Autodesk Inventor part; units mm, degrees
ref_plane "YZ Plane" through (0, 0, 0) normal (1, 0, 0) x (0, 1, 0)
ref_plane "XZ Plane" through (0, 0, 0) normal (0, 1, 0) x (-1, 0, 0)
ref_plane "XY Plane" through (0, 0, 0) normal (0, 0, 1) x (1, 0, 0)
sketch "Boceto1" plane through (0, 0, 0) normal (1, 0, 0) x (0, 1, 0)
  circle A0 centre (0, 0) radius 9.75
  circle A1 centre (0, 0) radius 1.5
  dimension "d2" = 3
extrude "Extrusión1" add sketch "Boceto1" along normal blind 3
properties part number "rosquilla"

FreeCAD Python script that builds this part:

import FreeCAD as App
import Part
import Sketcher

V = App.Vector
Q = App.Units.Quantity

doc = App.newDocument("Part")
body = doc.addObject("PartDesign::Body", "Body")

# Sketch on YZ plane
sketch1 = body.newObject("Sketcher::SketchObject", "Sketch")
sketch1.AttachmentSupport = (doc.getObject("YZ_Plane"), [""])
sketch1.MapMode = "FlatFace"
sketch1.addGeometry(Part.Circle(V(0, 0, 0), V(0, 0, 1), 9.8), False)
sketch1.addGeometry(Part.Circle(V(0, 0, 0), V(0, 0, 1), 1.5), False)
sketch1.addConstraint(Sketcher.Constraint("Coincident", 0, 3, -1, 1))
sketch1.addConstraint(Sketcher.Constraint("Coincident", 1, 3, -1, 1))
sketch1.addConstraint(Sketcher.Constraint("Diameter", 1, Q("3 mm")))
sketch1.addConstraint(Sketcher.Constraint("Diameter", 0, Q("19.5 mm")))
pad1 = body.newObject("PartDesign::Pad", "Pad")
pad1.Profile = sketch1
pad1.Length = 3

doc.recompute()
